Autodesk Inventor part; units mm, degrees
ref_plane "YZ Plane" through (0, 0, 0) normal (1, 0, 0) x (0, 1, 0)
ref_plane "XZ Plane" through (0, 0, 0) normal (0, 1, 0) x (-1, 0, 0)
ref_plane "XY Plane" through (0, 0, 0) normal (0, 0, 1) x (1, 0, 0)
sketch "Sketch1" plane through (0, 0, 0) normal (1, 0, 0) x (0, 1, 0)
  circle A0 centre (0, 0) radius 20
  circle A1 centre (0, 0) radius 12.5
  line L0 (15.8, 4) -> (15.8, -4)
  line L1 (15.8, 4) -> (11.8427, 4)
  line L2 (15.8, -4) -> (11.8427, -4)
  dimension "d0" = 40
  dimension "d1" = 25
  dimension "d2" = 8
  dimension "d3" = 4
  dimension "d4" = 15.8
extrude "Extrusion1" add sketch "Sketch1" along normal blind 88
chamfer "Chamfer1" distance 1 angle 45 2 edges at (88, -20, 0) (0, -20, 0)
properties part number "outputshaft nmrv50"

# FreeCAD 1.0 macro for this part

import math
import FreeCAD as App
import Part
import Sketcher

V = App.Vector
Q = App.Units.Quantity


def edges_at(feature, points):
    """Names of the edges that pass closest to the given points."""
    edges = feature.Shape.Edges
    near = lambda p: min(range(len(edges)), key=lambda i: edges[i].distToShape(Part.Vertex(*p))[0])
    return sorted({f"Edge{near(p) + 1}" for p in points})

doc = App.newDocument("Part")
body = doc.addObject("PartDesign::Body", "Body")

# Sketch on YZ plane
sketch1 = body.newObject("Sketcher::SketchObject", "Sketch")
sketch1.AttachmentSupport = (doc.getObject("YZ_Plane"), [""])
sketch1.MapMode = "FlatFace"
sketch1.addGeometry(Part.Circle(V(0, 0, 0), V(0, 0, 1), 20), False)
sketch1.addGeometry(Part.ArcOfCircle(Part.Circle(V(0, 0, 0), V(0, 0, 1), 12.5), math.radians(19), math.radians(341)), False)
sketch1.addGeometry(Part.LineSegment(V(11.8, 4, 0), V(15.8, 4, 0)), False)
sketch1.addGeometry(Part.LineSegment(V(15.8, 4, 0), V(15.8, -4, 0)), False)
sketch1.addGeometry(Part.LineSegment(V(15.8, -4, 0), V(11.8, -4, 0)), False)
sketch1.addConstraint(Sketcher.Constraint("Coincident", 1, 1, 2, 1))
sketch1.addConstraint(Sketcher.Constraint("Coincident", 2, 2, 3, 1))
sketch1.addConstraint(Sketcher.Constraint("Coincident", 3, 2, 4, 1))
sketch1.addConstraint(Sketcher.Constraint("Coincident", 4, 2, 1, 2))
sketch1.addConstraint(Sketcher.Constraint("Horizontal", 2))
sketch1.addConstraint(Sketcher.Constraint("Vertical", 3))
sketch1.addConstraint(Sketcher.Constraint("Horizontal", 4))
sketch1.addConstraint(Sketcher.Constraint("Coincident", 0, 3, -1, 1))
sketch1.addConstraint(Sketcher.Constraint("Coincident", 1, 3, -1, 1))
sketch1.addConstraint(Sketcher.Constraint("Vertical", 1, 1, 4, 2))
sketch1.addConstraint(Sketcher.Constraint("Diameter", 0, Q("40 mm")))
sketch1.addConstraint(Sketcher.Constraint("Radius", 1, Q("12.5 mm")))
sketch1.addConstraint(Sketcher.Constraint("DistanceY", 3, 2, 3, 1, Q("8 mm")))
sketch1.addConstraint(Sketcher.Constraint("DistanceX", -1, 1, 2, 2, Q("15.8 mm")))
pad1 = body.newObject("PartDesign::Pad", "Pad")
pad1.Profile = sketch1
pad1.Length = 88
doc.recompute()

chamfer = body.newObject("PartDesign::Chamfer", "Chamfer")
chamfer.Base = (pad1, edges_at(pad1, [(88, -20, 0), (0, -20, 0)]))
chamfer.Size = 1

doc.recompute()
